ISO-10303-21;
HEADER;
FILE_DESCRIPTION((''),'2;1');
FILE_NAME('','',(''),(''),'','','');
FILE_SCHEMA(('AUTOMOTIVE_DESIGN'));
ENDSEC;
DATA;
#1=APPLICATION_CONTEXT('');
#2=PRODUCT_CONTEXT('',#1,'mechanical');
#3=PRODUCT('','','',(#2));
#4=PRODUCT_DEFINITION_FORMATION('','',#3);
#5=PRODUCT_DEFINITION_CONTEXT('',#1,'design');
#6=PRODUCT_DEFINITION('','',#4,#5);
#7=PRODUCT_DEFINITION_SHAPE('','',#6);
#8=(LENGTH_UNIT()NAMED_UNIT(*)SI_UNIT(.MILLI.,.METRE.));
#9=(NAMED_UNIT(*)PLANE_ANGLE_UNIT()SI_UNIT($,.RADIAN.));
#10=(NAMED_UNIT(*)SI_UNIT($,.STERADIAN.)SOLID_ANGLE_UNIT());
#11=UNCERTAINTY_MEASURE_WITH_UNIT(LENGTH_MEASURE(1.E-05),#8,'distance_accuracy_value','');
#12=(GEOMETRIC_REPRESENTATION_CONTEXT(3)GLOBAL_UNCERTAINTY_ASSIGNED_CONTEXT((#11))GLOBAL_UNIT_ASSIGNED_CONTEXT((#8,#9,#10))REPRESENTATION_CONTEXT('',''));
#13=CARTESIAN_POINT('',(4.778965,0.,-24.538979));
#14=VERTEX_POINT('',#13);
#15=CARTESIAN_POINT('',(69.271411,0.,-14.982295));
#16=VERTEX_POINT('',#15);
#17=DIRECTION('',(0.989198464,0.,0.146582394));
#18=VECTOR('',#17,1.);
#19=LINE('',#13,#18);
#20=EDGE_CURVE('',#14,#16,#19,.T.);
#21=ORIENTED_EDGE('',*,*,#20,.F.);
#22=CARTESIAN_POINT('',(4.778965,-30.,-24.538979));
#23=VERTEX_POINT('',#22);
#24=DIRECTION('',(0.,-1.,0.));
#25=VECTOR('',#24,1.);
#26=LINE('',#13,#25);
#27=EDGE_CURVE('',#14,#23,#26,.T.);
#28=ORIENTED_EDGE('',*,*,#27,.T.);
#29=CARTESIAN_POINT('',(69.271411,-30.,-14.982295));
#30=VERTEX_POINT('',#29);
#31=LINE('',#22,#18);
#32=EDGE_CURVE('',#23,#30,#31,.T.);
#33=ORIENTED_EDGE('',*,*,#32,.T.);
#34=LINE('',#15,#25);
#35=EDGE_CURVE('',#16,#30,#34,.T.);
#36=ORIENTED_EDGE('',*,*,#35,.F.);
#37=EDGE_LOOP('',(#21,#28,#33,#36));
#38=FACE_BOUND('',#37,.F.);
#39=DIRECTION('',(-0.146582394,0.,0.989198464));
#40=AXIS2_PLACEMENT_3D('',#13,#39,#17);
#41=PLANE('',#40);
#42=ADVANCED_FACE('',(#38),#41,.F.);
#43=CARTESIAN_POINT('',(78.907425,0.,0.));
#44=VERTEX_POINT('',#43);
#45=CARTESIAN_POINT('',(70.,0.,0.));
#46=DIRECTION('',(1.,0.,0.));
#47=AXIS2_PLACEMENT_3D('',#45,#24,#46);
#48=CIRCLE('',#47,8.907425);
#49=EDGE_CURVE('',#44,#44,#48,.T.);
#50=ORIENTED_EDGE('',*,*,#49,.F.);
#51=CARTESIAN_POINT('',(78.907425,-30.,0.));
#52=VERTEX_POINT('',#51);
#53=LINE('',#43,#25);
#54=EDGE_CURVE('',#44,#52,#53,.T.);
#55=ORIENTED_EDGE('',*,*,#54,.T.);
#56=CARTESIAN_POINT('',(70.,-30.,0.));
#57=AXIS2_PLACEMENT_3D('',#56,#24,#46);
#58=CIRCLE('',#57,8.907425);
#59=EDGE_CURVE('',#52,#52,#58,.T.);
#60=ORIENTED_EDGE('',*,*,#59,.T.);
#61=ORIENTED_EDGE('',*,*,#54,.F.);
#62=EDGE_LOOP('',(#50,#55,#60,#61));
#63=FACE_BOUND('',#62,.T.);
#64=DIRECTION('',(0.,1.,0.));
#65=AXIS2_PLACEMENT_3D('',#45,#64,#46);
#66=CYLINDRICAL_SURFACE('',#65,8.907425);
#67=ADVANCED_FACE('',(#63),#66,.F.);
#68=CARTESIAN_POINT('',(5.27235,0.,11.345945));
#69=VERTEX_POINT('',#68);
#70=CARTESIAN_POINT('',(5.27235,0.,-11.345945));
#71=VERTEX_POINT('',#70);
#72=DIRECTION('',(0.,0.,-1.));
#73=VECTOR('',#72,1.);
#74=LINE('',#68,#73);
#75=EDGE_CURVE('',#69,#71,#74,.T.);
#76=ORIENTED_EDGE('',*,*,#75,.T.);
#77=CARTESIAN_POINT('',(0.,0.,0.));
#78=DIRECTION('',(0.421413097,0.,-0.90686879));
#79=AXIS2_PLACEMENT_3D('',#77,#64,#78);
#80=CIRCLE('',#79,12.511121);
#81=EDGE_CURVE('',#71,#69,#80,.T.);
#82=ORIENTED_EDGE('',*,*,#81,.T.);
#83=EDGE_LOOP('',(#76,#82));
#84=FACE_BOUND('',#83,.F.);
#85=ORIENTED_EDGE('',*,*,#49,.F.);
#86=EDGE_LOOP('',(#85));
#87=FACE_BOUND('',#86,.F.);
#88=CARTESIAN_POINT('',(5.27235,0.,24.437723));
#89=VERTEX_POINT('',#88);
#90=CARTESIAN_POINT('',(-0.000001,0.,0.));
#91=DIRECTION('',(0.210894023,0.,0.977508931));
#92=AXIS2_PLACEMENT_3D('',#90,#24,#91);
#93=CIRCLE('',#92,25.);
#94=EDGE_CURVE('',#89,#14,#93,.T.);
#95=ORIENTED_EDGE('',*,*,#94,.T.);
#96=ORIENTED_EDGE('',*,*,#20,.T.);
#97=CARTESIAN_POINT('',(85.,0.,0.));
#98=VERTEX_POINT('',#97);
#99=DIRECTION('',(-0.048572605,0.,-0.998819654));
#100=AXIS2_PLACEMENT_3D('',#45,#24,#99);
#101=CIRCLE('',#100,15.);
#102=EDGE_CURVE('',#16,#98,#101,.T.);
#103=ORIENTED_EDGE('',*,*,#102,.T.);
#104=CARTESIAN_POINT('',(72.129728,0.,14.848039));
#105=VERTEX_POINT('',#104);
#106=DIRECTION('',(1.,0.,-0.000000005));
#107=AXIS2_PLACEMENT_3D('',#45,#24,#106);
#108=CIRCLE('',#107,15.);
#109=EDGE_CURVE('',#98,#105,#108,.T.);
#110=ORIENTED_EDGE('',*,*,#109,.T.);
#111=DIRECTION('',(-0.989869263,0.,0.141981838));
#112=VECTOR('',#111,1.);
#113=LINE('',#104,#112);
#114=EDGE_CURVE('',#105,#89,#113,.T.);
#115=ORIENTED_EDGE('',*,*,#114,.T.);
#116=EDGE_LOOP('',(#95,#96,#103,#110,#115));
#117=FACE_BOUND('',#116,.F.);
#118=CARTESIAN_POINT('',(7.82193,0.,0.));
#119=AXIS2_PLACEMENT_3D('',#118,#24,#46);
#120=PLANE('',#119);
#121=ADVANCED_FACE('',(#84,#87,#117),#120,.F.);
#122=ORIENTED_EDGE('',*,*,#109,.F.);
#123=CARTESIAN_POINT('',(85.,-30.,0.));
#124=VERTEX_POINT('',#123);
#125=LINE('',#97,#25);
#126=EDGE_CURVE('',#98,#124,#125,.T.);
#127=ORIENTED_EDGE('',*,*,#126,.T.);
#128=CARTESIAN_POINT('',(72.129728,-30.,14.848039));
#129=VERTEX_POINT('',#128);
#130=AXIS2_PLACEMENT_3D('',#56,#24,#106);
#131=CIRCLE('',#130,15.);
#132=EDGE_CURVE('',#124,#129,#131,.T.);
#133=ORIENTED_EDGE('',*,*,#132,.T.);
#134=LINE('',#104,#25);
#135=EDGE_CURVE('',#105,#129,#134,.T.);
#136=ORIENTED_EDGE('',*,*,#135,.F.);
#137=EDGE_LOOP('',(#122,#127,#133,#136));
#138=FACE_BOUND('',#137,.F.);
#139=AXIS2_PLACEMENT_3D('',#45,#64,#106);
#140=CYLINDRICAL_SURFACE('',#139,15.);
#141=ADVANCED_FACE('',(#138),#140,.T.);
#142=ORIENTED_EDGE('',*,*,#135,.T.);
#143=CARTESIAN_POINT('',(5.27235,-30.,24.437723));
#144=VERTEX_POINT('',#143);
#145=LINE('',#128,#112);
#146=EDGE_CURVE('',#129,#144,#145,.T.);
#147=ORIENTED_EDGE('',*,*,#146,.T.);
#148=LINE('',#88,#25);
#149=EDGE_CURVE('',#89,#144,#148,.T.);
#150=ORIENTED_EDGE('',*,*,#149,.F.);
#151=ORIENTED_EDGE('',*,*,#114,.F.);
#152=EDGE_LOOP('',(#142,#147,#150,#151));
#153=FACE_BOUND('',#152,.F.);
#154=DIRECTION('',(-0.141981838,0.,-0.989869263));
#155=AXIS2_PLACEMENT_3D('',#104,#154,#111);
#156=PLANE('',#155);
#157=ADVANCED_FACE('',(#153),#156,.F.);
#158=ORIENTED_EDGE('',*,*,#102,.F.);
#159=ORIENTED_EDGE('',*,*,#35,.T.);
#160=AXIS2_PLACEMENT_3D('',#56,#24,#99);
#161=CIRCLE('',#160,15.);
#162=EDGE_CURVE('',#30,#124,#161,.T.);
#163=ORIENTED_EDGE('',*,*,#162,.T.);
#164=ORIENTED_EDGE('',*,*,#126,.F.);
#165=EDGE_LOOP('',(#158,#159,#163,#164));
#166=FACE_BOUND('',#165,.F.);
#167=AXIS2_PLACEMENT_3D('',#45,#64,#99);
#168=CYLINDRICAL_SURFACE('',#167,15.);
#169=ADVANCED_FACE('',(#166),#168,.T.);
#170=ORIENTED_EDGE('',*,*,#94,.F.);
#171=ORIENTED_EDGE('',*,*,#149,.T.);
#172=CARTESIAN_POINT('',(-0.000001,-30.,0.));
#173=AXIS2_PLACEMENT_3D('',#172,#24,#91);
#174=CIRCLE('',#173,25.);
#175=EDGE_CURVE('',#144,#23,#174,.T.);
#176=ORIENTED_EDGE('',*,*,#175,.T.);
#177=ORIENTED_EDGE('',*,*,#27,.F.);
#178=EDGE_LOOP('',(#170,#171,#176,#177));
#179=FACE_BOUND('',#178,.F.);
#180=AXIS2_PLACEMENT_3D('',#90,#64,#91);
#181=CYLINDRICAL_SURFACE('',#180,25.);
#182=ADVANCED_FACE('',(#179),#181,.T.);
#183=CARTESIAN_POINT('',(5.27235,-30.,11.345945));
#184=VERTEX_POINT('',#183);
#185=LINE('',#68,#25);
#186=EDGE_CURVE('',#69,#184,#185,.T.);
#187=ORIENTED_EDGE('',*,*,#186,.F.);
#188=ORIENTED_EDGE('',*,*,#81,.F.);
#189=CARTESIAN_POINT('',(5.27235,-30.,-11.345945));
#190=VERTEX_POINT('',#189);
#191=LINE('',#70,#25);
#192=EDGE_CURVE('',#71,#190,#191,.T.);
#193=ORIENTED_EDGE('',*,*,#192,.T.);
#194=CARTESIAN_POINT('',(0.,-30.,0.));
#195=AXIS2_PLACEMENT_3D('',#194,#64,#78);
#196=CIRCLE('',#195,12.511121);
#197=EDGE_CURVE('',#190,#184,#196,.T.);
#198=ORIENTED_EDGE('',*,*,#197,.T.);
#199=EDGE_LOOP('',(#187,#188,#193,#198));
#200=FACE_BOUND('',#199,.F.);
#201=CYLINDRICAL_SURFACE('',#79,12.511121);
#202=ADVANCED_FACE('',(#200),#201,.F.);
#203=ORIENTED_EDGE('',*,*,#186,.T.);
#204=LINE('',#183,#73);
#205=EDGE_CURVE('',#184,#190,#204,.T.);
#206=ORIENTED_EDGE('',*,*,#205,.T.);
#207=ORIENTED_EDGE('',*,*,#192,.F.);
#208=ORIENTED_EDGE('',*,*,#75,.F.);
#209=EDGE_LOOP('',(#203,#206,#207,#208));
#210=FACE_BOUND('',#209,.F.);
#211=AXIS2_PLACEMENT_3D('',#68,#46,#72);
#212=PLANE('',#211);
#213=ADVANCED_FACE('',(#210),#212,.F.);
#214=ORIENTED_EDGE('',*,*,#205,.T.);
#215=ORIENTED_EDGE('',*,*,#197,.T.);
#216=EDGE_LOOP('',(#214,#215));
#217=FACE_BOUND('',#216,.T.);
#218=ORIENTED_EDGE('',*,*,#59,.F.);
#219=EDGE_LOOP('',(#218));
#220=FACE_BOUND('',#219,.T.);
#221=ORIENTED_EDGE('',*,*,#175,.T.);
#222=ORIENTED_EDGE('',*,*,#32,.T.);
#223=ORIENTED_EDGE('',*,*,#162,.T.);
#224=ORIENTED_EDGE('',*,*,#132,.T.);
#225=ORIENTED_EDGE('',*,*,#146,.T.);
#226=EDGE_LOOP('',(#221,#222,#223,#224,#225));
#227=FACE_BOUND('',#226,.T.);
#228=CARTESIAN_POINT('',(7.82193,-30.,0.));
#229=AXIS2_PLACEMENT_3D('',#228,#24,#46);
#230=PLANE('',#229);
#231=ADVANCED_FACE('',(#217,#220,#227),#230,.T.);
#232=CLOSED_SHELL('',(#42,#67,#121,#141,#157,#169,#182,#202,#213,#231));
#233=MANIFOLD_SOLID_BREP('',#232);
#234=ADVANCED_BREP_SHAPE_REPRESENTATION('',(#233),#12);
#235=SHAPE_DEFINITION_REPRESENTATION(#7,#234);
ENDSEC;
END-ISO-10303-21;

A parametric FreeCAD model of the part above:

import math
import FreeCAD as App
import Part
import Sketcher

V = App.Vector

doc = App.newDocument("Part")
body = doc.addObject("PartDesign::Body", "Body")

sketch1 = doc.addObject("Sketcher::SketchObject", "Sketch")
body.addObject(sketch1)
sketch1.AttachmentSupport = (doc.XZ_Plane, [""])
sketch1.MapMode = "FlatFace"
sketch1.addGeometry(Part.ArcOfCircle(Part.Circle(V(0, 0, 0), V(0, 0, 1), 25), math.radians(78), math.radians(281)), False)
sketch1.addGeometry(Part.LineSegment(V(5, -25, 0), V(69, -15, 0)), False)
sketch1.addGeometry(Part.ArcOfCircle(Part.Circle(V(70, 0, 0), V(0, 0, 1), 15), math.radians(-93), math.radians(0)), False)
sketch1.addGeometry(Part.ArcOfCircle(Part.Circle(V(70, 0, 0), V(0, 0, 1), 15), math.radians(0), math.radians(82)), False)
sketch1.addGeometry(Part.LineSegment(V(72, 15, 0), V(5, 24, 0)), False)
sketch1.addGeometry(Part.ArcOfCircle(Part.Circle(V(0, 0, 0), V(0, 0, 1), 13), math.radians(65), math.radians(295)), False)
sketch1.addGeometry(Part.ArcOfCircle(Part.Circle(V(0, 0, 0), V(0, 0, 1), 13), math.radians(0), math.radians(65)), False)
sketch1.addGeometry(Part.ArcOfCircle(Part.Circle(V(0, 0, 0), V(0, 0, 1), 13), math.radians(-65), math.radians(0)), False)
sketch1.addGeometry(Part.Circle(V(70, 0, 0), V(0, 0, 1), 9), False)
sketch1.addConstraint(Sketcher.Constraint("Coincident", 0, 2, 1, 1))
sketch1.addConstraint(Sketcher.Constraint("Coincident", 1, 2, 2, 1))
sketch1.addConstraint(Sketcher.Constraint("Tangent", 2, 2, 3, 1))
sketch1.addConstraint(Sketcher.Constraint("Tangent", 3, 2, 4, 1))
sketch1.addConstraint(Sketcher.Constraint("Coincident", 4, 2, 0, 1))
sketch1.addConstraint(Sketcher.Constraint("Tangent", 5, 1, 6, 2))
sketch1.addConstraint(Sketcher.Constraint("Tangent", 6, 1, 7, 2))
sketch1.addConstraint(Sketcher.Constraint("Tangent", 7, 1, 5, 2))
sketch1.addConstraint(Sketcher.Constraint("Coincident", 0, 3, -1, 1))
sketch1.addConstraint(Sketcher.Constraint("Coincident", 5, 3, -1, 1))
sketch1.addConstraint(Sketcher.Constraint("Coincident", 8, 3, 2, 3))
sketch1.addConstraint(Sketcher.Constraint("Equal", 2, 3))
sketch1.addConstraint(Sketcher.Constraint("PointOnObject", 2, 3, -1))
sketch1.addConstraint(Sketcher.Constraint("PointOnObject", 2, 2, -1))
sketch1.addConstraint(Sketcher.Constraint("PointOnObject", 6, 1, -1))
sketch1.addConstraint(Sketcher.Constraint("Vertical", 4, 2, 5, 1))
sketch1.addConstraint(Sketcher.Constraint("Vertical", 5, 1, 7, 1))
sketch1.addConstraint(Sketcher.Constraint("Radius", 0, 25.0))
sketch1.addConstraint(Sketcher.Constraint("Radius", 2, 15.0))
sketch1.addConstraint(Sketcher.Constraint("DistanceX", -1, 1, 2, 3, 70.0))
sketch1.addConstraint(Sketcher.Constraint("Diameter", 8, 17.81485))
sketch1.addConstraint(Sketcher.Constraint("Radius", 5, 12.511121))
sketch1.addConstraint(Sketcher.Constraint("Distance", 1, 65.19667))
sketch1.addConstraint(Sketcher.Constraint("DistanceY", 0, 2, -1, 1, 24.538979))
sketch1.addConstraint(Sketcher.Constraint("DistanceX", -1, 1, 4, 2, 5.27235))
pad1 = doc.addObject("PartDesign::Pad", "Pad")
body.addObject(pad1)
pad1.Profile = sketch1
pad1.Length = 30

sketch2 = doc.addObject("Sketcher::SketchObject", "Sketch001")
body.addObject(sketch2)
sketch2.AttachmentSupport = (doc.XZ_Plane, [""])
sketch2.MapMode = "FlatFace"
sketch2.addGeometry(Part.ArcOfCircle(Part.Circle(V(0, 0, 0), V(0, 0, 1), 13), math.radians(-65), math.radians(0)), False)
sketch2.addGeometry(Part.ArcOfCircle(Part.Circle(V(0, 0, 0), V(0, 0, 1), 13), math.radians(0), math.radians(65)), False)
sketch2.addGeometry(Part.LineSegment(V(5, 11, 0), V(5, -11, 0)), False)
sketch2.addConstraint(Sketcher.Constraint("Tangent", 0, 2, 1, 1))
sketch2.addConstraint(Sketcher.Constraint("Coincident", 1, 2, 2, 1))
sketch2.addConstraint(Sketcher.Constraint("Coincident", 2, 2, 0, 1))
sketch2.addConstraint(Sketcher.Constraint("Vertical", 2))
sketch2.addConstraint(Sketcher.Constraint("Coincident", 0, 3, -1, 1))
sketch2.addConstraint(Sketcher.Constraint("Equal", 0, 1))
sketch2.addConstraint(Sketcher.Constraint("PointOnObject", 0, 2, -1))
sketch2.addConstraint(Sketcher.Constraint("Radius", 0, 12.511119))
sketch2.addConstraint(Sketcher.Constraint("DistanceY", 2, 2, 2, 1, 22.69189))
pad2 = doc.addObject("PartDesign::Pad", "Pad001")
body.addObject(pad2)
pad2.Profile = sketch2
pad2.Length = 30

doc.recompute()
